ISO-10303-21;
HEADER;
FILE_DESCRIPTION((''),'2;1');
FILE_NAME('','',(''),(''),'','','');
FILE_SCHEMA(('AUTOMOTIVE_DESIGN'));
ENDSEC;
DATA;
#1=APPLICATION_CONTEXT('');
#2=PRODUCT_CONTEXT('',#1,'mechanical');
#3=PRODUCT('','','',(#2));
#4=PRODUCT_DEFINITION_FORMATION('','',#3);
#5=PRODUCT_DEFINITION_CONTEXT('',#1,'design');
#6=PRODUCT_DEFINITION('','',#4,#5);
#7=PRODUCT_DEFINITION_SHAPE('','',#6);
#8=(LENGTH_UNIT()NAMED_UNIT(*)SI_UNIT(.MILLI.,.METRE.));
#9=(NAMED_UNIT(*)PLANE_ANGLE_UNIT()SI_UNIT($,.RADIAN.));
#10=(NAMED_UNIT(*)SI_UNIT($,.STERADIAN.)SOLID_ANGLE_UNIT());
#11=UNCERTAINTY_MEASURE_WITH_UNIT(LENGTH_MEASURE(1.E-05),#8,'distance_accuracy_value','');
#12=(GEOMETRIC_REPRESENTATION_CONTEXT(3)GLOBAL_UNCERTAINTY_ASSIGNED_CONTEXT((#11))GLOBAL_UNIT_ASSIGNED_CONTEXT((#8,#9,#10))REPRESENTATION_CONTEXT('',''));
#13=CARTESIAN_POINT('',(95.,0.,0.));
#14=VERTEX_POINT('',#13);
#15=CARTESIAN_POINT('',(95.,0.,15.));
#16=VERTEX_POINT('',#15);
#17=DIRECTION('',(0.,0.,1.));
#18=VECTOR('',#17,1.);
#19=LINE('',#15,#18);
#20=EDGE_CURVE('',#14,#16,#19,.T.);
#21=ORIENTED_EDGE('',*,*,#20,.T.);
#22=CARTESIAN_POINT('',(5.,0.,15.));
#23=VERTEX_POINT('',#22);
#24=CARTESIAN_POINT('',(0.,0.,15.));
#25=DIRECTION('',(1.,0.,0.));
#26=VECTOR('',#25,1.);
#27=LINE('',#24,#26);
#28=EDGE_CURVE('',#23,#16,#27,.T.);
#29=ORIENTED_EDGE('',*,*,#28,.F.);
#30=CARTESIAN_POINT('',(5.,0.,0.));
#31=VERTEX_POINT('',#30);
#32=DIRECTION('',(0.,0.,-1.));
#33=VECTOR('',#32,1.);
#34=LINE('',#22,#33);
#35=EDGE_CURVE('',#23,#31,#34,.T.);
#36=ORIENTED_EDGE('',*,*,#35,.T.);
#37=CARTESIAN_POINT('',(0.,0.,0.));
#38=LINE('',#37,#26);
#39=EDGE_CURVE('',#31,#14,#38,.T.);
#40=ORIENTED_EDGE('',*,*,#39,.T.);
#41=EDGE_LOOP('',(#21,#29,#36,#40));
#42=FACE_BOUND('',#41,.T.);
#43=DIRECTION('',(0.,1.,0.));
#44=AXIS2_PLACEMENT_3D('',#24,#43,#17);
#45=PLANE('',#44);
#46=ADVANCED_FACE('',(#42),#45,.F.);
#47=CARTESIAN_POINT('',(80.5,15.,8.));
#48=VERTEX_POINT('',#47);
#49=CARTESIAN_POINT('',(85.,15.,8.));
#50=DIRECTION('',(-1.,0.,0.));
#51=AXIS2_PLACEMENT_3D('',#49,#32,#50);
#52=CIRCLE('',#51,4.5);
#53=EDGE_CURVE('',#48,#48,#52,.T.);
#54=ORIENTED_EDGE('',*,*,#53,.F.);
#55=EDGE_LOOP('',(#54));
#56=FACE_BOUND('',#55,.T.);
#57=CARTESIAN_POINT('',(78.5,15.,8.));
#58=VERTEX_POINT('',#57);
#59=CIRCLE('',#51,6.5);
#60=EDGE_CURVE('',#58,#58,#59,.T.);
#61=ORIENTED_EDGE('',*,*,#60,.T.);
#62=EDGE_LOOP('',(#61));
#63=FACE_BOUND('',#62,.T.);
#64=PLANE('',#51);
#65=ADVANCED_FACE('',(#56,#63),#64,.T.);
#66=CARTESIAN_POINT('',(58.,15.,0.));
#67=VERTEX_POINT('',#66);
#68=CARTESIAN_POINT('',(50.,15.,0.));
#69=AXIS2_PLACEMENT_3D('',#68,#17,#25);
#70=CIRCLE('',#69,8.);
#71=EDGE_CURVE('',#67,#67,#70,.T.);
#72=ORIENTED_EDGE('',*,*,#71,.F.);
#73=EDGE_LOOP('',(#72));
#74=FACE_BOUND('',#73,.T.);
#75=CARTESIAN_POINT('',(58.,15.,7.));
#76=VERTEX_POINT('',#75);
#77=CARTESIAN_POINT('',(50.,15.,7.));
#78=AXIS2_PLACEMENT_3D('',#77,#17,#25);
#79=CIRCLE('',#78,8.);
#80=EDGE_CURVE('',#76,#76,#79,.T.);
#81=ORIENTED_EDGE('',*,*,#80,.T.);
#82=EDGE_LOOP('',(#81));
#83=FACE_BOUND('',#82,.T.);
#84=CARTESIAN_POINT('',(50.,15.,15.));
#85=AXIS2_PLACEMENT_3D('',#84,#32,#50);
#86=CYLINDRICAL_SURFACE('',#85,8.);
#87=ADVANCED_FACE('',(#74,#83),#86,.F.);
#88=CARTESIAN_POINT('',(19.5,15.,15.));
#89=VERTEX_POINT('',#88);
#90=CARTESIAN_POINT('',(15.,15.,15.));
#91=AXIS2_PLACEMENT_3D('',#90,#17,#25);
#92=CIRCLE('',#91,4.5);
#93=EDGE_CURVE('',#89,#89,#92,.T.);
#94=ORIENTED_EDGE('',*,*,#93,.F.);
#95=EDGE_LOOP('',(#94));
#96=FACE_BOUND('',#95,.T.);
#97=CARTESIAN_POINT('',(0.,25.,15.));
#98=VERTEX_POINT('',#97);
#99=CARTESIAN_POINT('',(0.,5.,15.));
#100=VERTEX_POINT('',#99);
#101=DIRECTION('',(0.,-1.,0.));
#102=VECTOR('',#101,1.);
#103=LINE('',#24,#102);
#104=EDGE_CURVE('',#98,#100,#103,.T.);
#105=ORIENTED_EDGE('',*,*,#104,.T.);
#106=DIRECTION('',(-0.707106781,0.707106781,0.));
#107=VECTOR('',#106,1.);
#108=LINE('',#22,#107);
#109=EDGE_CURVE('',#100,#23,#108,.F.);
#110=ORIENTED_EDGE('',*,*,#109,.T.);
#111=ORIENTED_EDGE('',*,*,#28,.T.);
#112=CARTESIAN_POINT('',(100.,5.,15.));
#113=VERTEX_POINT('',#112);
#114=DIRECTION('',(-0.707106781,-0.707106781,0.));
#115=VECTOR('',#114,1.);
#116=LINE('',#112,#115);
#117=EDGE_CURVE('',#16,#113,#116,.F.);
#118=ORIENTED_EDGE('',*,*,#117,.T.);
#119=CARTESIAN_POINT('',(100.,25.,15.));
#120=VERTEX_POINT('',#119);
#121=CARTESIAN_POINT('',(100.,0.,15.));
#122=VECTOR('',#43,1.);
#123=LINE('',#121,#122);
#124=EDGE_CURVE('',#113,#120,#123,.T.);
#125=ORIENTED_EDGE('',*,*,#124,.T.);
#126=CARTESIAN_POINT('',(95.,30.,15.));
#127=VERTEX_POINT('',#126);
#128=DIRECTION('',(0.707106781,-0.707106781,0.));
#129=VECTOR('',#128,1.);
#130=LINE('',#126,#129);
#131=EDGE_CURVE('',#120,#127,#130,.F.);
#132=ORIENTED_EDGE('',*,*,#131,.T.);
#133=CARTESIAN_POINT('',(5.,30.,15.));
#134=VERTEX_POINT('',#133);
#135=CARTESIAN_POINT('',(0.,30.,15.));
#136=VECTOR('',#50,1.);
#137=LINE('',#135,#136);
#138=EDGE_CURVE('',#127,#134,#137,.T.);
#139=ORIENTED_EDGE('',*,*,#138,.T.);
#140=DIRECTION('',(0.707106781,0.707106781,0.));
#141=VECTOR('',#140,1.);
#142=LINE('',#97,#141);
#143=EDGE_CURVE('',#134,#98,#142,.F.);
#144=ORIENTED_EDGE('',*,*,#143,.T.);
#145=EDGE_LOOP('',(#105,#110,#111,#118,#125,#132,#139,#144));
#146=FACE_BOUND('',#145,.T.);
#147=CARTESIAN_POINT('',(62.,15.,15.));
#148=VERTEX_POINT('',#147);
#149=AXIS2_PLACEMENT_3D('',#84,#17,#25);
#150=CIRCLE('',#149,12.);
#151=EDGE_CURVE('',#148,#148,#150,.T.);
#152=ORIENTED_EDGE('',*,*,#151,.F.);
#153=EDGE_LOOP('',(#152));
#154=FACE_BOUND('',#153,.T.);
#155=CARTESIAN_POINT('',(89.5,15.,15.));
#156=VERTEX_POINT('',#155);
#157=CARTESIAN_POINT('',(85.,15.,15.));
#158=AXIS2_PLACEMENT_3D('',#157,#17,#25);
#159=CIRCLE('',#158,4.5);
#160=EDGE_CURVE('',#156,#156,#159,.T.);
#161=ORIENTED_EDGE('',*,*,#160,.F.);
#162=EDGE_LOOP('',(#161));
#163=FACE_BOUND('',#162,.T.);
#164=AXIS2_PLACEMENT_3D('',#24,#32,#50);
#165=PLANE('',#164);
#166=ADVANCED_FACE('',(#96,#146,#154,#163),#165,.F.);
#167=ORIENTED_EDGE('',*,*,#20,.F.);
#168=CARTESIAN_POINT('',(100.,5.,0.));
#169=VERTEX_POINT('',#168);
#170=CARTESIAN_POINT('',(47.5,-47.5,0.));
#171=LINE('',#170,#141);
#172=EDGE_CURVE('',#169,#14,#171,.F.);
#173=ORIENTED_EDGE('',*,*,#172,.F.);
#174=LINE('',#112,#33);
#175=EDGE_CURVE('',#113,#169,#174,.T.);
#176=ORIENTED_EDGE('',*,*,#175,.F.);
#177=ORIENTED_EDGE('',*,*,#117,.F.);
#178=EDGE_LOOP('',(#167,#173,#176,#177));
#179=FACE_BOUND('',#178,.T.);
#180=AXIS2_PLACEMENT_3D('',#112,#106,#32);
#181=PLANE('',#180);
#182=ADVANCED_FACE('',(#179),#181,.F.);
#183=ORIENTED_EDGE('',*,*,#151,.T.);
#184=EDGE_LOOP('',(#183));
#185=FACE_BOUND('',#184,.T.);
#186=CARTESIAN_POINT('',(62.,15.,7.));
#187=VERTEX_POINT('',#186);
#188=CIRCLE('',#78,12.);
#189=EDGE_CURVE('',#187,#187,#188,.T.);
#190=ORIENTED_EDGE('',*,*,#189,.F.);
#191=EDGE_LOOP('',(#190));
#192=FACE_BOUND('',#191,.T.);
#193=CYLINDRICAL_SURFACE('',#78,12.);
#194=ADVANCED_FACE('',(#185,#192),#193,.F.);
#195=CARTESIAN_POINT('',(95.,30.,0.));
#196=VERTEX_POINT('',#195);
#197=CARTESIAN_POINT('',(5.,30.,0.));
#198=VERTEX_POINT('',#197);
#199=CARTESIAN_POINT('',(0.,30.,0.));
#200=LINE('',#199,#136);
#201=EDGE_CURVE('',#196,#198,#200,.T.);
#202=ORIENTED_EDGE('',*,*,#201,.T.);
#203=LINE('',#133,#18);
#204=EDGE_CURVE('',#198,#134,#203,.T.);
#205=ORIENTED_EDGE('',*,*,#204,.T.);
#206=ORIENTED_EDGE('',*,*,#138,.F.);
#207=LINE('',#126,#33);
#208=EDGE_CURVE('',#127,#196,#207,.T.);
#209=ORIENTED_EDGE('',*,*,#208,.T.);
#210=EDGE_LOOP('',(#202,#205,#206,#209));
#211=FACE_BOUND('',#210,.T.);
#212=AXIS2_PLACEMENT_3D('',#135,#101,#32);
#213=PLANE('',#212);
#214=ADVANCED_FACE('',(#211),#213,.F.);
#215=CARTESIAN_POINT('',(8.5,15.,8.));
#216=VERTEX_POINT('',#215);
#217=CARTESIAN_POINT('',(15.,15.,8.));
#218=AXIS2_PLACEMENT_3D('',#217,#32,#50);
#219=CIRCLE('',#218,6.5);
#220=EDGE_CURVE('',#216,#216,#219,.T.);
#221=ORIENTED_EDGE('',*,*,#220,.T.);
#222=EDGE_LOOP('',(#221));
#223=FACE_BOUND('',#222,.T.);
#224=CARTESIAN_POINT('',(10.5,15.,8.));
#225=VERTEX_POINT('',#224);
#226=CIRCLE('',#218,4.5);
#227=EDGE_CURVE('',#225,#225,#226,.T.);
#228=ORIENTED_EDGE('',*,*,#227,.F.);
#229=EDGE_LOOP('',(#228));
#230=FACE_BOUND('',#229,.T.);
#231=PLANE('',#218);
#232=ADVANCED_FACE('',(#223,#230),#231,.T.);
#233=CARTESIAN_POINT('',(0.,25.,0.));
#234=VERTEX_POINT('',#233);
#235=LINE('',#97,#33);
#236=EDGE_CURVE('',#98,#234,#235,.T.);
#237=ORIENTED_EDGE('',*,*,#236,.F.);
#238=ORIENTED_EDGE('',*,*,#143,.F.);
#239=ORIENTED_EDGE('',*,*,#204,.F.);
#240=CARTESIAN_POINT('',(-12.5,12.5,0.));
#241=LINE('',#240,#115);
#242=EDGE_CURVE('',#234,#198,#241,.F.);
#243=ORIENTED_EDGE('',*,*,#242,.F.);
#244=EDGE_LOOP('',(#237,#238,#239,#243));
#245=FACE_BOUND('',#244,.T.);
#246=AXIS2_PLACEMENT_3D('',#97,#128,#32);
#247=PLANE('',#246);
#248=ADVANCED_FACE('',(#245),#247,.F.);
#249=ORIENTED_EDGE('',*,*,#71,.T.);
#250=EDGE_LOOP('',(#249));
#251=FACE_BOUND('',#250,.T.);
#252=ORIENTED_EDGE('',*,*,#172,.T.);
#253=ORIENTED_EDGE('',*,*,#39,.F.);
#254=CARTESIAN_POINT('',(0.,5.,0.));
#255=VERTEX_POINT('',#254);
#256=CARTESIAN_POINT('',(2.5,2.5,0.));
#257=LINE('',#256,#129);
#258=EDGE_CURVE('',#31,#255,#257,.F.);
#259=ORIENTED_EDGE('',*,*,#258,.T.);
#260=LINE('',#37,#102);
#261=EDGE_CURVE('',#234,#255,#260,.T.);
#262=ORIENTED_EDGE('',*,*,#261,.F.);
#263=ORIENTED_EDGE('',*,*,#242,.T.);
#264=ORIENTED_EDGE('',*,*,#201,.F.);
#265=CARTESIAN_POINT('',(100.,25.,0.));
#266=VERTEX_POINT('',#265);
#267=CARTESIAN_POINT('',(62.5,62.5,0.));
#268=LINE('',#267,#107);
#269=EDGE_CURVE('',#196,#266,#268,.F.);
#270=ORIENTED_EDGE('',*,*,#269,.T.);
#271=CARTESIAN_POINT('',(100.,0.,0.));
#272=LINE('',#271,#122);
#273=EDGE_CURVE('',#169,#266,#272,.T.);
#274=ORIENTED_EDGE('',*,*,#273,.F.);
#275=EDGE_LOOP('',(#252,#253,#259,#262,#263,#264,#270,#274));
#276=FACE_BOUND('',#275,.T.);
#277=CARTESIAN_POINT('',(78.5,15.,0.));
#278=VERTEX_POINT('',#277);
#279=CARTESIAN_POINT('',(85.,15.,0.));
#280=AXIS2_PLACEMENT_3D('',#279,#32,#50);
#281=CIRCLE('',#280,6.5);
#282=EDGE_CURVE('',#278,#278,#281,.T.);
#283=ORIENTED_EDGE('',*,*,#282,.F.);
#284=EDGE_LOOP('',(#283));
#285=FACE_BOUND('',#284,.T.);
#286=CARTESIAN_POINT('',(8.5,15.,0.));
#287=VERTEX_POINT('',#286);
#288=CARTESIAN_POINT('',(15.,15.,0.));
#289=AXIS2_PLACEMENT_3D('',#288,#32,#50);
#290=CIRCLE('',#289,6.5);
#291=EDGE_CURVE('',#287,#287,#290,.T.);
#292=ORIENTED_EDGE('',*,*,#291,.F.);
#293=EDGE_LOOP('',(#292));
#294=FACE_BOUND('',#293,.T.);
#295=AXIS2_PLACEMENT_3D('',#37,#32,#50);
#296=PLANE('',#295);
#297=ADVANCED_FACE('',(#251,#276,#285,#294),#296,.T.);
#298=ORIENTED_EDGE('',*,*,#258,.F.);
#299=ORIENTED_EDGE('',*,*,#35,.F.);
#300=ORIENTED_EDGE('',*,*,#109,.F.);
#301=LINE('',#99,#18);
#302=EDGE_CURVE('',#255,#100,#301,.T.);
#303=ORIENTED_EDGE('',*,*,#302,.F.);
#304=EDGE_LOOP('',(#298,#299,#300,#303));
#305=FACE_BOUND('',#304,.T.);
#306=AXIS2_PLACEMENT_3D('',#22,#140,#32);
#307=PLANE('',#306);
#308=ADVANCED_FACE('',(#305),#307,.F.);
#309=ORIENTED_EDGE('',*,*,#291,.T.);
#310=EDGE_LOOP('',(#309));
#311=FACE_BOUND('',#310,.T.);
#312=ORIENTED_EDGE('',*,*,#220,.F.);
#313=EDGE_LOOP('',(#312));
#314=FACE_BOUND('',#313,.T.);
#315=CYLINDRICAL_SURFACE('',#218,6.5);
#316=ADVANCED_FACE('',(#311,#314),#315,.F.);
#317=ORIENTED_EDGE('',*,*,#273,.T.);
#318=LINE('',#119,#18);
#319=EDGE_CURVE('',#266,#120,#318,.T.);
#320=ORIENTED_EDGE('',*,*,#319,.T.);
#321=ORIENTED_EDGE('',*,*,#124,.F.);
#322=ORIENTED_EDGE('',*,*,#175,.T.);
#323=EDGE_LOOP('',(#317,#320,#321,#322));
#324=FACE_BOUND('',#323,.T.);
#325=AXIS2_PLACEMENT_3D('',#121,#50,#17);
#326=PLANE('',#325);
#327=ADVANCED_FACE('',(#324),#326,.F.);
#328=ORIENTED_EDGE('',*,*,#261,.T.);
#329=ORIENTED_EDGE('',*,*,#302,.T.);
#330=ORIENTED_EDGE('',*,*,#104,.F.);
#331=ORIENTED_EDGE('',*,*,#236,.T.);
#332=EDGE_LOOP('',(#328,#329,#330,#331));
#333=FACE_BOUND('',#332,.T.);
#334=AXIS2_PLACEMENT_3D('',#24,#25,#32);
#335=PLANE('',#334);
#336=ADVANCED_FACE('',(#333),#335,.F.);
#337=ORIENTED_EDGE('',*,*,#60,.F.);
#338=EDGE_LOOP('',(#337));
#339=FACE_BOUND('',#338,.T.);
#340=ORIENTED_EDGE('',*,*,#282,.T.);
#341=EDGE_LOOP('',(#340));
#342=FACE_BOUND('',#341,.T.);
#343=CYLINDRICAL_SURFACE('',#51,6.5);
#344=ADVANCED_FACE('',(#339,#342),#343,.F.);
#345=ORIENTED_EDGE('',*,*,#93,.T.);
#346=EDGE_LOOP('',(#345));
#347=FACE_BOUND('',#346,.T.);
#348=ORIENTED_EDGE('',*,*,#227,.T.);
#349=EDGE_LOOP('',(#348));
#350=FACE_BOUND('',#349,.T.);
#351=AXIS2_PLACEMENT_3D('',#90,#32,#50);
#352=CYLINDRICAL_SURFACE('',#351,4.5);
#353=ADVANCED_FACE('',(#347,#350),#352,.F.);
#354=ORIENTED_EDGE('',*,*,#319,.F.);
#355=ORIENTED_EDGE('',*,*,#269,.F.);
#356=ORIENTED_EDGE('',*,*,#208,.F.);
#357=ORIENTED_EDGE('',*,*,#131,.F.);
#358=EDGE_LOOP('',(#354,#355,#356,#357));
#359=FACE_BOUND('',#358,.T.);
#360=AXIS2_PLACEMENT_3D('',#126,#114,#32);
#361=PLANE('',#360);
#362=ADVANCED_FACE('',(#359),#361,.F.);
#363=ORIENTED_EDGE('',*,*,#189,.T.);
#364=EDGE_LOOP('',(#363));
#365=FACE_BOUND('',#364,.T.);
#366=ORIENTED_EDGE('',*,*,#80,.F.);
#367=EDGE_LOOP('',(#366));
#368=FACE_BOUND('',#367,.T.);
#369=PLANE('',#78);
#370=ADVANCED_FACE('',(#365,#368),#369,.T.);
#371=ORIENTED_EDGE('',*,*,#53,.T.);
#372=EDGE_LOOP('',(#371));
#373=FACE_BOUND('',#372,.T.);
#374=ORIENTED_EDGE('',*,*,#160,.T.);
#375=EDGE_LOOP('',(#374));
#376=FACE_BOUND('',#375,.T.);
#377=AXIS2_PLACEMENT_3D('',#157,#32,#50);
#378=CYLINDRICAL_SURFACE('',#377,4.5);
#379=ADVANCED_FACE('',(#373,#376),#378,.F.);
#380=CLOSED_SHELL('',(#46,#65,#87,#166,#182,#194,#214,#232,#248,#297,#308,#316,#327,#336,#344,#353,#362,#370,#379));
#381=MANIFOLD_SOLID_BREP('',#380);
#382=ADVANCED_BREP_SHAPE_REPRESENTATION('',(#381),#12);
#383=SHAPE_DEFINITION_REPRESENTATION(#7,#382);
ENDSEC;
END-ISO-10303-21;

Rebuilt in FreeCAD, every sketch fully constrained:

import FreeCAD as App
import Part
import Sketcher

V = App.Vector


def edges_at(feature, points):
    """Names of the edges that pass closest to the given points."""
    edges = feature.Shape.Edges
    near = lambda p: min(range(len(edges)), key=lambda i: edges[i].distToShape(Part.Vertex(*p))[0])
    return sorted({f"Edge{near(p) + 1}" for p in points})


def add_polygon(sketch, points):
    """Adds a closed chain of lines whose ends are joined by coincident constraints."""
    first, n = sketch.GeometryCount, len(points)
    for a, b in zip(points, points[1:] + points[:1]):
        sketch.addGeometry(Part.LineSegment(App.Vector(*a, 0), App.Vector(*b, 0)), False)
    for i in range(n):
        sketch.addConstraint(Sketcher.Constraint("Coincident", first + i, 2, first + (i + 1) % n, 1))

doc = App.newDocument("Part")
body = doc.addObject("PartDesign::Body", "Body")

# Sketch on XY plane
sketch1 = doc.addObject("Sketcher::SketchObject", "Sketch")
body.addObject(sketch1)
sketch1.AttachmentSupport = (doc.XY_Plane, [""])
sketch1.MapMode = "FlatFace"
add_polygon(sketch1, [(0, 30), (0, 0), (100, 0), (100, 30)])  # lines 0-3
sketch1.addGeometry(Part.Circle(V(15, 15, 0), V(0, 0, 1), 4.5), False)  # 4
sketch1.addGeometry(Part.Circle(V(50, 15, 0), V(0, 0, 1), 8), False)  # 5
sketch1.addGeometry(Part.Circle(V(85, 15, 0), V(0, 0, 1), 4.5), False)  # 6
sketch1.addConstraint(Sketcher.Constraint("Vertical", 0))
sketch1.addConstraint(Sketcher.Constraint("Horizontal", 1))
sketch1.addConstraint(Sketcher.Constraint("Vertical", 2))
sketch1.addConstraint(Sketcher.Constraint("Horizontal", 3))
sketch1.addConstraint(Sketcher.Constraint("Coincident", 0, 2, -1, 1))
sketch1.addConstraint(Sketcher.Constraint("Equal", 4, 6))
sketch1.addConstraint(Sketcher.Constraint("Horizontal", 4, 3, 5, 3))
sketch1.addConstraint(Sketcher.Constraint("Horizontal", 5, 3, 6, 3))
sketch1.addConstraint(Sketcher.Constraint("Diameter", 4, 9.0))
sketch1.addConstraint(Sketcher.Constraint("Diameter", 5, 16.0))
sketch1.addConstraint(Sketcher.Constraint("DistanceX", 1, 1, 1, 2, 100.0))
sketch1.addConstraint(Sketcher.Constraint("DistanceY", 0, 2, 0, 1, 30.0))
sketch1.addConstraint(Sketcher.Constraint("DistanceX", -1, 1, 4, 3, 15.0))
sketch1.addConstraint(Sketcher.Constraint("DistanceY", -1, 1, 4, 3, 15.0))
sketch1.addConstraint(Sketcher.Constraint("DistanceX", -1, 1, 5, 3, 50.0))
sketch1.addConstraint(Sketcher.Constraint("DistanceX", -1, 1, 6, 3, 85.0))
pad1 = doc.addObject("PartDesign::Pad", "Pad")
body.addObject(pad1)
pad1.Profile = sketch1
pad1.Length = 15

# Sketch on XY plane
sketch2 = doc.addObject("Sketcher::SketchObject", "Sketch001")
body.addObject(sketch2)
sketch2.AttachmentSupport = (doc.XY_Plane, [""])
sketch2.MapMode = "FlatFace"
sketch2.AttachmentOffset = App.Placement(V(0, 0, 15), App.Rotation())
sketch2.addGeometry(Part.Circle(V(50, 15, 0), V(0, 0, 1), 12), False)
sketch2.addConstraint(Sketcher.Constraint("Diameter", 0, 24.0))
sketch2.addConstraint(Sketcher.Constraint("DistanceX", -1, 1, 0, 3, 50.0))
sketch2.addConstraint(Sketcher.Constraint("DistanceY", -1, 1, 0, 3, 15.0))
pocket1 = doc.addObject("PartDesign::Pocket", "Pocket")
body.addObject(pocket1)
pocket1.Profile = sketch2
pocket1.Length = 8

# Sketch on XY plane
sketch3 = doc.addObject("Sketcher::SketchObject", "Sketch002")
body.addObject(sketch3)
sketch3.AttachmentSupport = (doc.XY_Plane, [""])
sketch3.MapMode = "FlatFace"
sketch3.addGeometry(Part.Circle(V(85, 15, 0), V(0, 0, 1), 6), False)
sketch3.addGeometry(Part.Circle(V(15, 15, 0), V(0, 0, 1), 6), False)
sketch3.addConstraint(Sketcher.Constraint("Equal", 0, 1))
sketch3.addConstraint(Sketcher.Constraint("Horizontal", 0, 3, 1, 3))
sketch3.addConstraint(Sketcher.Constraint("Diameter", 0, 13.0))
sketch3.addConstraint(Sketcher.Constraint("DistanceX", -1, 1, 0, 3, 85.0))
sketch3.addConstraint(Sketcher.Constraint("DistanceY", -1, 1, 0, 3, 15.0))
sketch3.addConstraint(Sketcher.Constraint("DistanceX", -1, 1, 1, 3, 15.0))
pocket2 = doc.addObject("PartDesign::Pocket", "Pocket001")
body.addObject(pocket2)
pocket2.Profile = sketch3
pocket2.Length = 8
pocket2.Reversed = True
doc.recompute()

chamfer = doc.addObject("PartDesign::Chamfer", "Chamfer")
body.addObject(chamfer)
chamfer.Base = (pocket2, edges_at(pocket2, [
    (0, 30, 7.5),
    (100, 30, 7.5),
    (100, 0, 7.5),
    (0, 0, 7.5),
]))
chamfer.Size = 5

doc.recompute()
